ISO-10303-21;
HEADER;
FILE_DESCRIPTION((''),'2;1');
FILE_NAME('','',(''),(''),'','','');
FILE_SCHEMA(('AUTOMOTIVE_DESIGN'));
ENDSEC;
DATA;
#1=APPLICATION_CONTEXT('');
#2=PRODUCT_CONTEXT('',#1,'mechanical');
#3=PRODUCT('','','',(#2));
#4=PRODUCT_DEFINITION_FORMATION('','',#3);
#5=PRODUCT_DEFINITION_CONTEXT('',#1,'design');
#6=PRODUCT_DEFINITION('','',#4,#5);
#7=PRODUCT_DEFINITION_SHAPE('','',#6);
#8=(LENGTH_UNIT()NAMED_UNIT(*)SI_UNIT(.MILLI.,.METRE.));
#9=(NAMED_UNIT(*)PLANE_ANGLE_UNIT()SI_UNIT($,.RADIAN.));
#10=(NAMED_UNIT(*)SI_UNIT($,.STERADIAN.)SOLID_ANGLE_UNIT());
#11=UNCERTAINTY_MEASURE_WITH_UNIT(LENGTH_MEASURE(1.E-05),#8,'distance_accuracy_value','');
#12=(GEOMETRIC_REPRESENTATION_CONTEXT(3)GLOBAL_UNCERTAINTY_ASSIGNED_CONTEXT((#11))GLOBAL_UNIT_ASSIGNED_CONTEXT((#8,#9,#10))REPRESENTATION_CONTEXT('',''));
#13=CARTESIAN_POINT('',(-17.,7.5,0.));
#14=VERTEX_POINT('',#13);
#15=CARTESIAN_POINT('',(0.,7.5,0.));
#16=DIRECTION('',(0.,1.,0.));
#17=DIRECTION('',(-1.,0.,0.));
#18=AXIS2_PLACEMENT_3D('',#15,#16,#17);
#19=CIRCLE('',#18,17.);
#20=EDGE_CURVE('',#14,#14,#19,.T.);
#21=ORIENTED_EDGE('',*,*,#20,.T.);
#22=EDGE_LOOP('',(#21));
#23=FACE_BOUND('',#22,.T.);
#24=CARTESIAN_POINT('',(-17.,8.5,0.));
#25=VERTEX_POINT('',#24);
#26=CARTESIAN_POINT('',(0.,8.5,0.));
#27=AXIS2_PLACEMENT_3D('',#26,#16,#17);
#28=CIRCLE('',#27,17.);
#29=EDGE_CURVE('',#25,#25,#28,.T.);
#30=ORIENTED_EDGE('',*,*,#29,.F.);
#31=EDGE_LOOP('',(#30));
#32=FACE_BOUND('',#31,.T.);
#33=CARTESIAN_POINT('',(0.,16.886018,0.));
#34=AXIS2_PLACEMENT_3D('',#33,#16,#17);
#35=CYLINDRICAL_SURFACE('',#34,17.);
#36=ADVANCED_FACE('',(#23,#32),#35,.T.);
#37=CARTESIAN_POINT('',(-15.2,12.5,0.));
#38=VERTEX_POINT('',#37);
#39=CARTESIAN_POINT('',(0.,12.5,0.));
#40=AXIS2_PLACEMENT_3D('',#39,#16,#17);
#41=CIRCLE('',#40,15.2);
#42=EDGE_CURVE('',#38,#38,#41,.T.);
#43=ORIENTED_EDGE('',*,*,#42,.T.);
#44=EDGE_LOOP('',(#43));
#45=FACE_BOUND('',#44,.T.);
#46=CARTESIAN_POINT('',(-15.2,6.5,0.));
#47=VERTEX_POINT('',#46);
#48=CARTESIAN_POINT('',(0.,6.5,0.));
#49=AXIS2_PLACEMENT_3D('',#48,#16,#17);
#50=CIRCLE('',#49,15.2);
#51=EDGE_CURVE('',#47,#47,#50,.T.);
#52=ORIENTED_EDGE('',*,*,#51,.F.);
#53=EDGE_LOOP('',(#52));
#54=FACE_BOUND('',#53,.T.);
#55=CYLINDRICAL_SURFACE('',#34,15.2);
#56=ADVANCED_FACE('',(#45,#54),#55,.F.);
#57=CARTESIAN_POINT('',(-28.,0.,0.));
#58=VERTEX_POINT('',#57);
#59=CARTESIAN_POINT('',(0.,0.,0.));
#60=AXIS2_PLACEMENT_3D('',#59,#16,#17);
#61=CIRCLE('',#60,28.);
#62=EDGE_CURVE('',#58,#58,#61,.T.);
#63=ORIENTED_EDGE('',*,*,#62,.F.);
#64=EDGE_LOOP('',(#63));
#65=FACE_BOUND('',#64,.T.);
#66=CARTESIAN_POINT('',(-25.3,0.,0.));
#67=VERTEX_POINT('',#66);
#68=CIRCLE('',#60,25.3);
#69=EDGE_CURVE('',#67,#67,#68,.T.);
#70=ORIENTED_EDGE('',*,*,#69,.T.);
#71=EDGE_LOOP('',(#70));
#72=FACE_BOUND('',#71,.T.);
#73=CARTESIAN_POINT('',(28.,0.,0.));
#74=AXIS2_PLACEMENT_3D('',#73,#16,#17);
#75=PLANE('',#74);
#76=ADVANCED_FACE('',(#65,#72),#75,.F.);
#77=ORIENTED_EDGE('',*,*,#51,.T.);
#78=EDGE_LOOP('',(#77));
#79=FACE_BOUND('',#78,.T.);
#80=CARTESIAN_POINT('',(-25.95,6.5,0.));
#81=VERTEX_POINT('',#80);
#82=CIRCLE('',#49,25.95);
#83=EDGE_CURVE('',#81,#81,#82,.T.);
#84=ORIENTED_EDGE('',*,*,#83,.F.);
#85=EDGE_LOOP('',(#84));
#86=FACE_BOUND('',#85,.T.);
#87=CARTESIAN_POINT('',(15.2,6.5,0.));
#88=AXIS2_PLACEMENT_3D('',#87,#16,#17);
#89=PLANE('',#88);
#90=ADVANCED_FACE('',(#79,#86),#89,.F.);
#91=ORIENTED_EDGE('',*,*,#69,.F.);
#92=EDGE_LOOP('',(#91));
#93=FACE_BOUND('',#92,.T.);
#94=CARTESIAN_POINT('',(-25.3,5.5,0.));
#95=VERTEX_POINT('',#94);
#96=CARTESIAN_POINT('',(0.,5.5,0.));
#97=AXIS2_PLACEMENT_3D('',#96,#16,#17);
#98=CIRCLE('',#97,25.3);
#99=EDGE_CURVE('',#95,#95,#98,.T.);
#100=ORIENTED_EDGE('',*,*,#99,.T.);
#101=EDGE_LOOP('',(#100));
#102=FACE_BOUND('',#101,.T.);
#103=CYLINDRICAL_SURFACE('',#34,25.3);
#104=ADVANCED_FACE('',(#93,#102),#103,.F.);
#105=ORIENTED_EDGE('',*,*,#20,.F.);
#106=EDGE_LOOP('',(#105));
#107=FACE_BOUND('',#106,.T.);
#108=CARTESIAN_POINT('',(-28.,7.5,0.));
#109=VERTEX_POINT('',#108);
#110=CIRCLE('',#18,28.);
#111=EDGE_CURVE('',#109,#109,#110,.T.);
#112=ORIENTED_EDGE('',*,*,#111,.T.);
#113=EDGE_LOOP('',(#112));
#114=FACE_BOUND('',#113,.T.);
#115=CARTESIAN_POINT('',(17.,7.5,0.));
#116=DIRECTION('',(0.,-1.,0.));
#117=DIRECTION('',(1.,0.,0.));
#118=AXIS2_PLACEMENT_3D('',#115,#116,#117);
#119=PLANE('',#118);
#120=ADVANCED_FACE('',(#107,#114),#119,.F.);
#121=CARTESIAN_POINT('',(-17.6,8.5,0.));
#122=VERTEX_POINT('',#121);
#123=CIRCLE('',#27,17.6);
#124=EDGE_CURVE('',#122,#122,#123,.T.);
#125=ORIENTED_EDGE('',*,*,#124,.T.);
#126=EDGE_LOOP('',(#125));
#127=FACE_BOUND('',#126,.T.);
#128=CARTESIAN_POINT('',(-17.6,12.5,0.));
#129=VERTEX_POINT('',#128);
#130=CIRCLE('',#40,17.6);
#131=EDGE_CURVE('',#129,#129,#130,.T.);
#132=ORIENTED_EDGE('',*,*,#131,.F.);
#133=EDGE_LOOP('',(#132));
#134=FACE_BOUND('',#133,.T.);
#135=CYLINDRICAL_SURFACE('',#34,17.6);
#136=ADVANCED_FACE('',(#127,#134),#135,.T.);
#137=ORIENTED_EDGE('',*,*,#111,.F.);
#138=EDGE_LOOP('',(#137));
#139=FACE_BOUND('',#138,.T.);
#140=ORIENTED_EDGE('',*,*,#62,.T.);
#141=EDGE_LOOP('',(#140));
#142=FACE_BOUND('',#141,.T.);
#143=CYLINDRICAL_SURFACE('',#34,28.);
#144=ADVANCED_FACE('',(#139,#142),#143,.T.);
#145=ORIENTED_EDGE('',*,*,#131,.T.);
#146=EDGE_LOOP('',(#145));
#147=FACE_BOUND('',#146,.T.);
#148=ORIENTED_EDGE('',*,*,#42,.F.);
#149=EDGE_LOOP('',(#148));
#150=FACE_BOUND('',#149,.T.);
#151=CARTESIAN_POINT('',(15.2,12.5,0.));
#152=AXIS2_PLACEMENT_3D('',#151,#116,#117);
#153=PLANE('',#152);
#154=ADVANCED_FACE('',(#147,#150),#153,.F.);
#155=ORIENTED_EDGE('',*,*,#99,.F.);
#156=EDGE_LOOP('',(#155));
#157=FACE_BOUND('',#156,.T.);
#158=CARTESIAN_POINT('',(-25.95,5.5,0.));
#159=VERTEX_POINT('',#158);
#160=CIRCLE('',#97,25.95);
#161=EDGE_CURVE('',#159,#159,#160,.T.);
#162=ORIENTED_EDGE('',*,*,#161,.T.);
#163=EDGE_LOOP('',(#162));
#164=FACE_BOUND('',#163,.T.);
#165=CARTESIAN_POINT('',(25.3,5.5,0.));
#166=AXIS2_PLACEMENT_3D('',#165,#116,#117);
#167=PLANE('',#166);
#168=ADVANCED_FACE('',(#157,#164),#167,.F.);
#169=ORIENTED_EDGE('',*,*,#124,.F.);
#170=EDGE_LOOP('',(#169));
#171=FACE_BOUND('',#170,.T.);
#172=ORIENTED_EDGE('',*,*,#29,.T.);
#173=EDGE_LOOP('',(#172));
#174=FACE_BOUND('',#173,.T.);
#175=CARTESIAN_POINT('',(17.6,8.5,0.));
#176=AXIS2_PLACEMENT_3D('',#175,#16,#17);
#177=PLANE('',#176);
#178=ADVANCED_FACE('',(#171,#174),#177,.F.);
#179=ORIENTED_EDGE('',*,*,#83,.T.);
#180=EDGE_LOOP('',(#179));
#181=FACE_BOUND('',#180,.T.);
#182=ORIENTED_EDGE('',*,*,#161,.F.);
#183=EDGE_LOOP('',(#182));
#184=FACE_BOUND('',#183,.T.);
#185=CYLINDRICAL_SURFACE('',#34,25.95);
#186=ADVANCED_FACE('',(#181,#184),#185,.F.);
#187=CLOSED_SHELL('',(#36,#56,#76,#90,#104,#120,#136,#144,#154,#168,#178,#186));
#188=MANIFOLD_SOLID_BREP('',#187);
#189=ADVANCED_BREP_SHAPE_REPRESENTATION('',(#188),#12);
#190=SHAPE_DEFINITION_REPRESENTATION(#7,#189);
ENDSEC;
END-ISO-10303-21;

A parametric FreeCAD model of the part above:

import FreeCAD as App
import Part
import Sketcher
from FreeCAD import Vector

doc = App.newDocument("Part")
body = doc.addObject("PartDesign::Body", "Body")

sketch1 = body.newObject("Sketcher::SketchObject", "Sketch")
sketch1.AttachmentSupport = (doc.getObject("XY_Plane"), [""])
sketch1.MapMode = "FlatFace"
sketch1.addGeometry(Part.LineSegment(Vector(25.3, 5.5, 0), Vector(25.3, 0, 0)), False)
sketch1.addGeometry(Part.LineSegment(Vector(25.3, 0, 0), Vector(28, 0, 0)), False)
sketch1.addGeometry(Part.LineSegment(Vector(28, 0, 0), Vector(28, 7.5, 0)), False)
sketch1.addGeometry(Part.LineSegment(Vector(28, 7.5, 0), Vector(17, 7.5, 0)), False)
sketch1.addGeometry(Part.LineSegment(Vector(17, 7.5, 0), Vector(17, 8.5, 0)), False)
sketch1.addGeometry(Part.LineSegment(Vector(17, 8.5, 0), Vector(17.6, 8.5, 0)), False)
sketch1.addGeometry(Part.LineSegment(Vector(17.6, 8.5, 0), Vector(17.6, 12.5, 0)), False)
sketch1.addGeometry(Part.LineSegment(Vector(17.6, 12.5, 0), Vector(15.2, 12.5, 0)), False)
sketch1.addGeometry(Part.LineSegment(Vector(15.2, 12.5, 0), Vector(15.2, 6.5, 0)), False)
sketch1.addGeometry(Part.LineSegment(Vector(15.2, 6.5, 0), Vector(25.9, 6.5, 0)), False)
sketch1.addGeometry(Part.LineSegment(Vector(25.9, 6.5, 0), Vector(25.9, 5.5, 0)), False)
sketch1.addGeometry(Part.LineSegment(Vector(25.9, 5.5, 0), Vector(25.3, 5.5, 0)), False)
sketch1.addConstraint(Sketcher.Constraint("Coincident", 0, 2, 1, 1))
sketch1.addConstraint(Sketcher.Constraint("Coincident", 1, 2, 2, 1))
sketch1.addConstraint(Sketcher.Constraint("Coincident", 2, 2, 3, 1))
sketch1.addConstraint(Sketcher.Constraint("Coincident", 3, 2, 4, 1))
sketch1.addConstraint(Sketcher.Constraint("Coincident", 4, 2, 5, 1))
sketch1.addConstraint(Sketcher.Constraint("Coincident", 5, 2, 6, 1))
sketch1.addConstraint(Sketcher.Constraint("Coincident", 6, 2, 7, 1))
sketch1.addConstraint(Sketcher.Constraint("Coincident", 7, 2, 8, 1))
sketch1.addConstraint(Sketcher.Constraint("Coincident", 8, 2, 9, 1))
sketch1.addConstraint(Sketcher.Constraint("Coincident", 9, 2, 10, 1))
sketch1.addConstraint(Sketcher.Constraint("Coincident", 10, 2, 11, 1))
sketch1.addConstraint(Sketcher.Constraint("Coincident", 11, 2, 0, 1))
sketch1.addConstraint(Sketcher.Constraint("Vertical", 0))
sketch1.addConstraint(Sketcher.Constraint("Horizontal", 1))
sketch1.addConstraint(Sketcher.Constraint("Vertical", 2))
sketch1.addConstraint(Sketcher.Constraint("Horizontal", 3))
sketch1.addConstraint(Sketcher.Constraint("Vertical", 4))
sketch1.addConstraint(Sketcher.Constraint("Horizontal", 5))
sketch1.addConstraint(Sketcher.Constraint("Vertical", 6))
sketch1.addConstraint(Sketcher.Constraint("Horizontal", 7))
sketch1.addConstraint(Sketcher.Constraint("Vertical", 8))
sketch1.addConstraint(Sketcher.Constraint("Horizontal", 9))
sketch1.addConstraint(Sketcher.Constraint("Vertical", 10))
sketch1.addConstraint(Sketcher.Constraint("Horizontal", 11))
sketch1.addConstraint(Sketcher.Constraint("PointOnObject", 0, 2, -1))
sketch1.addConstraint(Sketcher.Constraint("Equal", 4, 10))
sketch1.addConstraint(Sketcher.Constraint("DistanceX", 3, 2, 3, 1, 11.0))
sketch1.addConstraint(Sketcher.Constraint("DistanceY", 4, 1, 4, 2, 1.0))
sketch1.addConstraint(Sketcher.Constraint("DistanceY", 6, 1, 6, 2, 4.0))
sketch1.addConstraint(Sketcher.Constraint("DistanceY", 8, 2, 8, 1, 6.0))
sketch1.addConstraint(Sketcher.Constraint("DistanceX", 1, 1, 1, 2, 2.7))
sketch1.addConstraint(Sketcher.Constraint("DistanceX", 5, 1, 5, 2, 0.6))
sketch1.addConstraint(Sketcher.Constraint("DistanceX", 7, 2, 7, 1, 2.4))
sketch1.addConstraint(Sketcher.Constraint("DistanceY", 0, 2, 0, 1, 5.5))
sketch1.addConstraint(Sketcher.Constraint("DistanceX", -1, 1, 1, 2, 28.0))
sketch1.addConstraint(Sketcher.Constraint("DistanceX", 9, 1, 9, 2, 10.75))
revolution = body.newObject("PartDesign::Revolution", "Revolution")
revolution.Profile = sketch1
revolution.ReferenceAxis = (sketch1, ["V_Axis"])
revolution.Angle = 360

doc.recompute()
